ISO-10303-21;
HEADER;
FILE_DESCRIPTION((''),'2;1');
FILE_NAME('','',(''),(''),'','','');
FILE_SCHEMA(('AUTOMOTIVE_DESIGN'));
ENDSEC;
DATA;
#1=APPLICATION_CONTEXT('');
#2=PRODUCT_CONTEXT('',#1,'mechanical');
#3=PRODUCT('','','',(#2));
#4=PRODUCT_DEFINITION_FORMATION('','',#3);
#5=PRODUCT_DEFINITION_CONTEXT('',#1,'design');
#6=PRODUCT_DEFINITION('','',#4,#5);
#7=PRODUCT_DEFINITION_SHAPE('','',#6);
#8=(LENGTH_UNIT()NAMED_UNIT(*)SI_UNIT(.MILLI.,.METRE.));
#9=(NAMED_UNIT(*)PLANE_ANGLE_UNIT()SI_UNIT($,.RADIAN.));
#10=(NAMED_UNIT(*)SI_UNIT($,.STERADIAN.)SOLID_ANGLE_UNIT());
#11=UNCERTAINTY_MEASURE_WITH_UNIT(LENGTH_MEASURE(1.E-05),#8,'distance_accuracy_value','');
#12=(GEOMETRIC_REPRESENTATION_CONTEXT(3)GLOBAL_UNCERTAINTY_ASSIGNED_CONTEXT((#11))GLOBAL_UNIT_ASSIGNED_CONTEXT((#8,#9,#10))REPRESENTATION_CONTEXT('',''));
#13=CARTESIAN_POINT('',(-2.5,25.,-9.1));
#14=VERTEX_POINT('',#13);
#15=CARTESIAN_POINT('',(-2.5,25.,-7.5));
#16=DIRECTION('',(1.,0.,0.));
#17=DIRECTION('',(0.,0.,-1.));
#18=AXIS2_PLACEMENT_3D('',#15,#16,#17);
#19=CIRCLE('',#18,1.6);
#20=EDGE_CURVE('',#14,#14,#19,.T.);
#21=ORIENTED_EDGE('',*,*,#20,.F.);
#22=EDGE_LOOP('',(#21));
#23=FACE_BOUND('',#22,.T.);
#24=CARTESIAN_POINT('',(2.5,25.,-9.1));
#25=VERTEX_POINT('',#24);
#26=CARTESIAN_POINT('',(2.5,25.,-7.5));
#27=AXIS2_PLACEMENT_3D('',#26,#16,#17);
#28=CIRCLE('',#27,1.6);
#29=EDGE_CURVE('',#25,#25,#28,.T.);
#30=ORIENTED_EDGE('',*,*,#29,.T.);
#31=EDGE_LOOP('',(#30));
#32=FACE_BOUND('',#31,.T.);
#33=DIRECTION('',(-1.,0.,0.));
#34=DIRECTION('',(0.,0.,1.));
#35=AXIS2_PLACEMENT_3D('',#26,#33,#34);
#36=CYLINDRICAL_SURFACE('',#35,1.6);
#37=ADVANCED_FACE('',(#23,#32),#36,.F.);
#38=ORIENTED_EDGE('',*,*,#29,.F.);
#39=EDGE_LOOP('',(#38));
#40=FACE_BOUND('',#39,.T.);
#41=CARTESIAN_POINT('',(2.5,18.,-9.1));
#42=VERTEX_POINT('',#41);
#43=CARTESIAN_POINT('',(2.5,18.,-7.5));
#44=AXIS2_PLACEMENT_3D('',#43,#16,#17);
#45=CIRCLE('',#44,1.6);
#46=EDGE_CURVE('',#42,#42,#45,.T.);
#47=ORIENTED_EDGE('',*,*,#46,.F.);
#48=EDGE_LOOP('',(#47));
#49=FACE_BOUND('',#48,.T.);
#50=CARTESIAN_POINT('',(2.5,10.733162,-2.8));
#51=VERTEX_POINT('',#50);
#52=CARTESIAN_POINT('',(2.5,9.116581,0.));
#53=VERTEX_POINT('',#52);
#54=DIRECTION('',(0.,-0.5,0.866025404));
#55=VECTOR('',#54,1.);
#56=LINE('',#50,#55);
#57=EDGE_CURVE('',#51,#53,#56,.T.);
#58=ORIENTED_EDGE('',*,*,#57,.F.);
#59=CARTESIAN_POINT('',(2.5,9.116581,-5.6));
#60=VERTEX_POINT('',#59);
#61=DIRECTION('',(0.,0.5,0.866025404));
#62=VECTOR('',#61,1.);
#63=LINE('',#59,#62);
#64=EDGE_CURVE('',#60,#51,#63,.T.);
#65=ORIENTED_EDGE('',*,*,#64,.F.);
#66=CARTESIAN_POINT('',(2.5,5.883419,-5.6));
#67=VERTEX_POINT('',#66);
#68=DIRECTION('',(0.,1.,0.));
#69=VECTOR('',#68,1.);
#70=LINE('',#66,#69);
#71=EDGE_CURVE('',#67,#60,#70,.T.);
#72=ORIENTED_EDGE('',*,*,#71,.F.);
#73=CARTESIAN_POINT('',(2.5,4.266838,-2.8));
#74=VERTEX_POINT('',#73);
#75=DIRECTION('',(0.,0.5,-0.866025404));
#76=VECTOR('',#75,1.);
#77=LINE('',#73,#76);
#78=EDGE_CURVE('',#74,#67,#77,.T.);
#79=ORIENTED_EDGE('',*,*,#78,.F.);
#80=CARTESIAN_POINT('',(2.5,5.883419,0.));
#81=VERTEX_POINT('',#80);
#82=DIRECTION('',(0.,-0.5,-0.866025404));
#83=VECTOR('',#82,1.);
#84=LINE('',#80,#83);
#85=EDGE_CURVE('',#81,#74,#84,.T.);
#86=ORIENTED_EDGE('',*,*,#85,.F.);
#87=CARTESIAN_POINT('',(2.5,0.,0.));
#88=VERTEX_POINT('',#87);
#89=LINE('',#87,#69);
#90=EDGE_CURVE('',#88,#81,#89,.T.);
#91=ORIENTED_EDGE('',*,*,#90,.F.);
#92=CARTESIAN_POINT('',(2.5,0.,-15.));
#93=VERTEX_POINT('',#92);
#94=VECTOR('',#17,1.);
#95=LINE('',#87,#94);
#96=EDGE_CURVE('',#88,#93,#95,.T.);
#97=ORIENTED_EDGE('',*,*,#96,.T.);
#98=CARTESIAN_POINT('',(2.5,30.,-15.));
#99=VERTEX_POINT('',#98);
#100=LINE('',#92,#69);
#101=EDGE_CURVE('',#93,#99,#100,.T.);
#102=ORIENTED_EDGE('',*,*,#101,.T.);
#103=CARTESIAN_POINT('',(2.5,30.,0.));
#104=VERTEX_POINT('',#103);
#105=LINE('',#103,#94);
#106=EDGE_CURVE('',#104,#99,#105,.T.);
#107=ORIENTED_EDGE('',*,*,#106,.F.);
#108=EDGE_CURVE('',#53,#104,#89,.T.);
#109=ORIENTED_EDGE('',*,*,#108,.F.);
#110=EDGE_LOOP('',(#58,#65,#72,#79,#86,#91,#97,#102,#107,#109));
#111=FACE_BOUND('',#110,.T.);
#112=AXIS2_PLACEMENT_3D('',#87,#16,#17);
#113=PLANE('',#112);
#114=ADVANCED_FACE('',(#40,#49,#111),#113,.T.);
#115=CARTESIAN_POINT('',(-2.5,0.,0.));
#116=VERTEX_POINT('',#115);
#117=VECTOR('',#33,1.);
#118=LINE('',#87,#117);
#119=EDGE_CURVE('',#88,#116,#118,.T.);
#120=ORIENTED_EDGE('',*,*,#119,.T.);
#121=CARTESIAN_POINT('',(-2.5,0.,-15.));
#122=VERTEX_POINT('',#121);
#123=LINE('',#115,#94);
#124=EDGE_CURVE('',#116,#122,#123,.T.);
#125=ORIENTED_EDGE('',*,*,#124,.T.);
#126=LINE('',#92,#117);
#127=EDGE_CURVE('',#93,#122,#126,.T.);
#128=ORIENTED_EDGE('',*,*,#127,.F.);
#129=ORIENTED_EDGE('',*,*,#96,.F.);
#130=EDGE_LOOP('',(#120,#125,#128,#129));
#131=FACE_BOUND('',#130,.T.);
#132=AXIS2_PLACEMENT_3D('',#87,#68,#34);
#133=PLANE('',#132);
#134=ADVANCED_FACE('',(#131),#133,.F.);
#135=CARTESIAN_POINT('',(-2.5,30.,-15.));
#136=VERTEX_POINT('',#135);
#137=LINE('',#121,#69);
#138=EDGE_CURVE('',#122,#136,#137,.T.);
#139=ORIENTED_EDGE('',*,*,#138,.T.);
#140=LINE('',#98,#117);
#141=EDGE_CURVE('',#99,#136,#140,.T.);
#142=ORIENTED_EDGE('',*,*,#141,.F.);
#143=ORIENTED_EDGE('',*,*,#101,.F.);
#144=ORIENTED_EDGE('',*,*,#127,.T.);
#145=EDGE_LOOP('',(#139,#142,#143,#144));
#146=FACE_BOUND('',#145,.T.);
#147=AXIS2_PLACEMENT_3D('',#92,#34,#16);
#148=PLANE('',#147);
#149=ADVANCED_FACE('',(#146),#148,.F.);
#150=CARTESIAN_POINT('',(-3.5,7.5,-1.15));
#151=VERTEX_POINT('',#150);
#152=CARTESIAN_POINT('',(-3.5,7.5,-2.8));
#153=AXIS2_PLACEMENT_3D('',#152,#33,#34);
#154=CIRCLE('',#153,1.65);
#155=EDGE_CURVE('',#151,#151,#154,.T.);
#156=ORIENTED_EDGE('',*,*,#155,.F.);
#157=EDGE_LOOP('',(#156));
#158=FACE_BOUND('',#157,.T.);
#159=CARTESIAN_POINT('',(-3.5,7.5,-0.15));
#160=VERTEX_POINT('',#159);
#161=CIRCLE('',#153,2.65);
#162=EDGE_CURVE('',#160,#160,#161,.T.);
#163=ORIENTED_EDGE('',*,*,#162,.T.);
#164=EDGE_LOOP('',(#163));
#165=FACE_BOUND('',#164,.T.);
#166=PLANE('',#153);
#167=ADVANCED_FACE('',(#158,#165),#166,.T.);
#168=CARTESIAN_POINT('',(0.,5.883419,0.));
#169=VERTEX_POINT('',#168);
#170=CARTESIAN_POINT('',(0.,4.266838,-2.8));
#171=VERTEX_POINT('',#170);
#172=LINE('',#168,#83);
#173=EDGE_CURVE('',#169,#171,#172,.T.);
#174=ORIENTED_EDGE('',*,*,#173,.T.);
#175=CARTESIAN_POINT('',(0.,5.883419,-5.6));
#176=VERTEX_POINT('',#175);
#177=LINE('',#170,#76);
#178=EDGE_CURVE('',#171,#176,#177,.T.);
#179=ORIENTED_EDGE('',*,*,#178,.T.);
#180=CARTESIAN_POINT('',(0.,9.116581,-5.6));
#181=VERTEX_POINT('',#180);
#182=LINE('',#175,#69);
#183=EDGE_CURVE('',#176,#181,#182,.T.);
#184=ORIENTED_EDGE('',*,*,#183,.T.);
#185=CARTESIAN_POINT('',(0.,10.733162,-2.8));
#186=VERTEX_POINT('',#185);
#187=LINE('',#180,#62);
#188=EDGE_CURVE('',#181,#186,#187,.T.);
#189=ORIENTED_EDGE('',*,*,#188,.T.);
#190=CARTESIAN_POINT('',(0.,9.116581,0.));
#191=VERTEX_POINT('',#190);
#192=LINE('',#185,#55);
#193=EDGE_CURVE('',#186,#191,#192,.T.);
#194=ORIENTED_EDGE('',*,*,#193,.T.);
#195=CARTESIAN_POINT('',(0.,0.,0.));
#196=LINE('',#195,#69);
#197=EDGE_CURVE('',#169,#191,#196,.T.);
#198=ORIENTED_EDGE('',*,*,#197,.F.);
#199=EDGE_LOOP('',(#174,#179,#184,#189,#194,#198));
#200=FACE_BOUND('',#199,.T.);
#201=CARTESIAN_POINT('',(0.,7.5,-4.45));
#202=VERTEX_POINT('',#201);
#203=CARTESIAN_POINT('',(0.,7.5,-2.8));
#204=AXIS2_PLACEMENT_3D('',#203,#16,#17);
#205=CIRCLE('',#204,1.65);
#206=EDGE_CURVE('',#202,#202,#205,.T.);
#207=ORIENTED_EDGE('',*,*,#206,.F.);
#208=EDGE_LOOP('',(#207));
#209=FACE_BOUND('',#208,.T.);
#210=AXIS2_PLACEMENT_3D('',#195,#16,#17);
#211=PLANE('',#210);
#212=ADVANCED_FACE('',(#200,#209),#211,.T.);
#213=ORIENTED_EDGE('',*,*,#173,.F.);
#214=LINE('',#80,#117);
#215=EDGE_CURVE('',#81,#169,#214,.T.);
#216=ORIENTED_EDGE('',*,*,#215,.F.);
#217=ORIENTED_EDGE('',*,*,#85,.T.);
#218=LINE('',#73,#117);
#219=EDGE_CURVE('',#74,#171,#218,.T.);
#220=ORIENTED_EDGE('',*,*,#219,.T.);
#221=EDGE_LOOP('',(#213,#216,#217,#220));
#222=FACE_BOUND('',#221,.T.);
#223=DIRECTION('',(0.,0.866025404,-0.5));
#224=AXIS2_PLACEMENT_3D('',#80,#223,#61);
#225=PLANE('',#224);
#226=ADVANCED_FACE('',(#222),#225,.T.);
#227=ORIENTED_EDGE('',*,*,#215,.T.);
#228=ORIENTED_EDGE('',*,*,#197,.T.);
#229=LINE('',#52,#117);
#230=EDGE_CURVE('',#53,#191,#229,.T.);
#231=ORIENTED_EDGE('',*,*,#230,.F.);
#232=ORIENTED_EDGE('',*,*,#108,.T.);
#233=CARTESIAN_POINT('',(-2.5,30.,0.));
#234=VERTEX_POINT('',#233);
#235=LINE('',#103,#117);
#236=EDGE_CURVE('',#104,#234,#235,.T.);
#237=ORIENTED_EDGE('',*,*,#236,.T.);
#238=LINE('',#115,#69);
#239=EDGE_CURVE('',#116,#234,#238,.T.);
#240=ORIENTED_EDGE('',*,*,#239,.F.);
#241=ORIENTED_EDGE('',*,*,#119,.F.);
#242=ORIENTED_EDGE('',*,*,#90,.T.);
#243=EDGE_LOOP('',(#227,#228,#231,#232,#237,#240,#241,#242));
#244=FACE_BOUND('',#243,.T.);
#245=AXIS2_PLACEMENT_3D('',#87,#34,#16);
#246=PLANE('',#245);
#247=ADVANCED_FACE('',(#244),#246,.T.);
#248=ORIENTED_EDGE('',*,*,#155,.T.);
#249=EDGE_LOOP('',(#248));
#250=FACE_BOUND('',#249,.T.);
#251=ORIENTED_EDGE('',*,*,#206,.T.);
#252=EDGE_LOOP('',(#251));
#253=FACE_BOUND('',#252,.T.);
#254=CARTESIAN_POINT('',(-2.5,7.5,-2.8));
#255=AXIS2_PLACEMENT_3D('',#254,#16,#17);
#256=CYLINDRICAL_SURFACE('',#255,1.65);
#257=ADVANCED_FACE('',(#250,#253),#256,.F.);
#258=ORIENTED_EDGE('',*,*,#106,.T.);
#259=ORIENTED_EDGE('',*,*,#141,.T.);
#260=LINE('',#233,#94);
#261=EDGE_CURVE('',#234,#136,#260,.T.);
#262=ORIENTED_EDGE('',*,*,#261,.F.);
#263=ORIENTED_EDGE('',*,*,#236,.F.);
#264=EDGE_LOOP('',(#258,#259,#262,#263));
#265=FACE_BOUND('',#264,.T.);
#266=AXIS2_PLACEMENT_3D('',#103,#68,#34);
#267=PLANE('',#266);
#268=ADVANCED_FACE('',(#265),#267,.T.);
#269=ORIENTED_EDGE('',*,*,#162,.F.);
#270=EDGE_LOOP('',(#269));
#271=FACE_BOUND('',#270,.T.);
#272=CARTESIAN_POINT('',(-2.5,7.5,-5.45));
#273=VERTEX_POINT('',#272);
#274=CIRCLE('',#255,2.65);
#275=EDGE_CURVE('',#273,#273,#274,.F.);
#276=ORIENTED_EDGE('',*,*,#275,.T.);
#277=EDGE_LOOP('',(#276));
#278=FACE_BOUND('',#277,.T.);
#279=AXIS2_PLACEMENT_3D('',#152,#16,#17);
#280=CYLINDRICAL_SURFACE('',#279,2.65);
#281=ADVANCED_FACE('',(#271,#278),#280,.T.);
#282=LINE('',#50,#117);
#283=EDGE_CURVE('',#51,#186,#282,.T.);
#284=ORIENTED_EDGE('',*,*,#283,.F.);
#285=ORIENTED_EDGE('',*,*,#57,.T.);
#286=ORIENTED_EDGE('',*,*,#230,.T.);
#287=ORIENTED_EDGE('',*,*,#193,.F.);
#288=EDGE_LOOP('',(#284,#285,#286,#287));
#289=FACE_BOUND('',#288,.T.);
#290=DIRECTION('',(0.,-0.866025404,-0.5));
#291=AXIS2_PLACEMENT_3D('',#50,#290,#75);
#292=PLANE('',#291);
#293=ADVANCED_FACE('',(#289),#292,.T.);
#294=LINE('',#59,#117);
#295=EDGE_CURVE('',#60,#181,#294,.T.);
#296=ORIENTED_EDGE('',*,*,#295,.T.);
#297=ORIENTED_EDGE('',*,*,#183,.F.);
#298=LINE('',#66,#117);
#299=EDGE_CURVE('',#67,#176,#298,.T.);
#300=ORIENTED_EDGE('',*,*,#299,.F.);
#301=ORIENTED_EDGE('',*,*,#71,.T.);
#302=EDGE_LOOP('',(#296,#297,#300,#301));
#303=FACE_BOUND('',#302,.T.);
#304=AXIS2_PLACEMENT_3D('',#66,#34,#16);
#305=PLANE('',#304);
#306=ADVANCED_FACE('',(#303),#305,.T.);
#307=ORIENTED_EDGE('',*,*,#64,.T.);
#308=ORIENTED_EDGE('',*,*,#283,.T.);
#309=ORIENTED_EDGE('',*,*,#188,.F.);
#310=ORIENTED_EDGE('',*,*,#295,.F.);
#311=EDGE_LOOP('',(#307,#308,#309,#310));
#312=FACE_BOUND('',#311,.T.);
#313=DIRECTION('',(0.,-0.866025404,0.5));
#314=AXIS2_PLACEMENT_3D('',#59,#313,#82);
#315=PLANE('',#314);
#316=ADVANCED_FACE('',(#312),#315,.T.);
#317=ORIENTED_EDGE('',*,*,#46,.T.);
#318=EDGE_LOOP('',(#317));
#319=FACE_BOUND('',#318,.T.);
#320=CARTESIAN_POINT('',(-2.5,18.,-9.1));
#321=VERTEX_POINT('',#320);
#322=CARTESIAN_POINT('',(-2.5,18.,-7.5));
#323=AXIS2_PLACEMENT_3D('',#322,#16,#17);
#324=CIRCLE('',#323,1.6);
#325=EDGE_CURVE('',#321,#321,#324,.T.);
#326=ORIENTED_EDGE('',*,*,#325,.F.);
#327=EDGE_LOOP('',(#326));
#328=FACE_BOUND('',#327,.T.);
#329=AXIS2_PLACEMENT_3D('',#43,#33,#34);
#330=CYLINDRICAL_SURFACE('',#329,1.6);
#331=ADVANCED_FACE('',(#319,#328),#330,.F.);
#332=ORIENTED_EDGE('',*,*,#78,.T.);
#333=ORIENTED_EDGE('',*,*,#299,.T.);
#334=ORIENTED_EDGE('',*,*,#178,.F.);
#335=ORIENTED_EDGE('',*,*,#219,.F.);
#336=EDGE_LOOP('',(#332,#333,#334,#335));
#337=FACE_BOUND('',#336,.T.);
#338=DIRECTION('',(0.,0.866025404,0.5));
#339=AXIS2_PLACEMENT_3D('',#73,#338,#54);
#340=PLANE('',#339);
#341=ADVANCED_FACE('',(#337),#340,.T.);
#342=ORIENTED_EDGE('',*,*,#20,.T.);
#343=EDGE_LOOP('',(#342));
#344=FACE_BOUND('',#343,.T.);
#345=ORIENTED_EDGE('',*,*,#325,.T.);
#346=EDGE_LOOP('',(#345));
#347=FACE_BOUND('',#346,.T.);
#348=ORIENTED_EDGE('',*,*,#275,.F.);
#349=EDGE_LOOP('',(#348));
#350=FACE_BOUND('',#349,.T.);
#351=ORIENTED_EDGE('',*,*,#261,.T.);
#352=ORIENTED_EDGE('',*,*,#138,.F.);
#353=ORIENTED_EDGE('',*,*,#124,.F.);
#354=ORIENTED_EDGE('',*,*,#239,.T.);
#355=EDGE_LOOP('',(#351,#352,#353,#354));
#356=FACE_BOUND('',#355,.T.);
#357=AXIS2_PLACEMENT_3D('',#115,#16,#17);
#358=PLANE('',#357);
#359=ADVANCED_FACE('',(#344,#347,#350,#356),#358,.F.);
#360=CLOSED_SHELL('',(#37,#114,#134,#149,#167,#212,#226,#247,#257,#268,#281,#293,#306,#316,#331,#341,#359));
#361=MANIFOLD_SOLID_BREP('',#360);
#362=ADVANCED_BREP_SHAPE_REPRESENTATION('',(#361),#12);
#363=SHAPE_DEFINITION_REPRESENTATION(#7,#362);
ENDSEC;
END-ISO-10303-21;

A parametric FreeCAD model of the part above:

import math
import FreeCAD as App
import Part
import Sketcher

V = App.Vector
Q = App.Units.Quantity


def add_polygon(sketch, points):
    """Adds a closed chain of lines whose ends are joined by coincident constraints."""
    first, n = sketch.GeometryCount, len(points)
    for a, b in zip(points, points[1:] + points[:1]):
        sketch.addGeometry(Part.LineSegment(App.Vector(*a, 0), App.Vector(*b, 0)), False)
    for i in range(n):
        sketch.addConstraint(Sketcher.Constraint("Coincident", first + i, 2, first + (i + 1) % n, 1))

doc = App.newDocument("Part")
body = doc.addObject("PartDesign::Body", "Body")

# Sketch on YZ plane
sketch1 = doc.addObject("Sketcher::SketchObject", "Sketch")
body.addObject(sketch1)
sketch1.AttachmentSupport = (doc.YZ_Plane, [""])
sketch1.MapMode = "FlatFace"
add_polygon(sketch1, [(5.9, 0), (0, 0), (0, -15), (30, -15), (30, 0), (9.1, 0), (10.7, -2.8), (9.1, -5.6), (5.9, -5.6), (4.3, -2.8)])  # lines 0-9
sketch1.addGeometry(Part.Circle(V(18, -7.5, 0), V(0, 0, 1), 1.6), False)  # 10
sketch1.addGeometry(Part.Circle(V(25, -7.5, 0), V(0, 0, 1), 1.6), False)  # 11
sketch1.addConstraint([
    Sketcher.Constraint("Horizontal", 0),
    Sketcher.Constraint("Vertical", 1),
    Sketcher.Constraint("Horizontal", 2),
    Sketcher.Constraint("Vertical", 3),
    Sketcher.Constraint("Horizontal", 4),
    Sketcher.Constraint("Horizontal", 7),
    Sketcher.Constraint("Coincident", 0, 2, -1, 1),
    Sketcher.Constraint("Equal", 10, 11),
    Sketcher.Constraint("PointOnObject", 3, 2, -1),
    Sketcher.Constraint("Parallel", 5, 8),
    Sketcher.Constraint("Parallel", 6, 9),
    Sketcher.Constraint("Horizontal", 10, 3, 11, 3),
    Sketcher.Constraint("Horizontal", 5, 2, 8, 2),
    Sketcher.Constraint("Vertical", 4, 2, 6, 2),
    Sketcher.Constraint("Vertical", 7, 2, 9, 2),
    Sketcher.Constraint("Diameter", 10, 3.2),
    Sketcher.Constraint("DistanceX", 2, 1, 2, 2, 30.0),
    Sketcher.Constraint("DistanceY", 1, 2, 1, 1, 15.0),
    Sketcher.Constraint("Angle", 5, Q("-60 deg")),
    Sketcher.Constraint("DistanceX", -1, 1, 10, 3, 18.0),
    Sketcher.Constraint("DistanceX", -1, 1, 11, 3, 25.0),
    Sketcher.Constraint("DistanceY", 10, 3, -1, 1, 7.5),
    Sketcher.Constraint("DistanceY", 5, 2, -1, 1, 2.8),
    Sketcher.Constraint("DistanceX", 0, 2, 0, 1, 5.883419),
    Sketcher.Constraint("DistanceX", 4, 2, 4, 1, 20.883419),
])
pad1 = doc.addObject("PartDesign::Pad", "Pad")
body.addObject(pad1)
pad1.Profile = sketch1
pad1.Length = 2.5

# Sketch on YZ plane
sketch2 = doc.addObject("Sketcher::SketchObject", "Sketch001")
body.addObject(sketch2)
sketch2.AttachmentSupport = (doc.YZ_Plane, [""])
sketch2.MapMode = "FlatFace"
sketch2.AttachmentOffset = App.Placement(V(0, 0, -2.5), App.Rotation())
add_polygon(sketch2, [(0, 0), (0, -15), (30, -15), (30, 0)])  # lines 0-3
sketch2.addGeometry(Part.ArcOfCircle(Part.Circle(V(18, -7.5, 0), V(0, 0, 1), 1.6), math.radians(51), math.radians(270)), False)  # 4
sketch2.addGeometry(Part.ArcOfCircle(Part.Circle(V(18, -7.5, 0), V(0, 0, 1), 1.6), math.radians(-51), math.radians(51)), False)  # 5
sketch2.addGeometry(Part.ArcOfCircle(Part.Circle(V(18, -7.5, 0), V(0, 0, 1), 1.6), math.radians(-90), math.radians(-51)), False)  # 6
sketch2.addGeometry(Part.Circle(V(25, -7.5, 0), V(0, 0, 1), 1.6), False)  # 7
sketch2.addGeometry(Part.Circle(V(7.5, -2.8, 0), V(0, 0, 1), 1.6), False)  # 8
sketch2.addConstraint([
    Sketcher.Constraint("Tangent", 4, 1, 5, 2),
    Sketcher.Constraint("Tangent", 5, 1, 6, 2),
    Sketcher.Constraint("Tangent", 6, 1, 4, 2),
    Sketcher.Constraint("Vertical", 0),
    Sketcher.Constraint("Horizontal", 1),
    Sketcher.Constraint("Vertical", 2),
    Sketcher.Constraint("Horizontal", 3),
    Sketcher.Constraint("Coincident", 3, 2, -1, 1),
    Sketcher.Constraint("Equal", 6, 7),
    Sketcher.Constraint("Horizontal", 6, 3, 7, 3),
    Sketcher.Constraint("Vertical", 4, 1, 5, 1),
    Sketcher.Constraint("Vertical", 5, 3, 6, 1),
    Sketcher.Constraint("Diameter", 7, 3.2),
    Sketcher.Constraint("Diameter", 8, 3.3),
    Sketcher.Constraint("DistanceX", 1, 1, 1, 2, 30.0),
    Sketcher.Constraint("DistanceY", 0, 2, 0, 1, 15.0),
    Sketcher.Constraint("DistanceX", -1, 1, 4, 3, 18.0),
    Sketcher.Constraint("DistanceX", -1, 1, 7, 3, 25.0),
    Sketcher.Constraint("DistanceX", -1, 1, 4, 1, 19.0),
    Sketcher.Constraint("DistanceY", 4, 3, -1, 1, 7.5),
    Sketcher.Constraint("DistanceX", -1, 1, 8, 3, 7.5),
    Sketcher.Constraint("DistanceY", 8, 3, -1, 1, 2.8),
])
pad2 = doc.addObject("PartDesign::Pad", "Pad001")
body.addObject(pad2)
pad2.Profile = sketch2
pad2.Length = 2.5

# Sketch on YZ plane
sketch3 = doc.addObject("Sketcher::SketchObject", "Sketch002")
body.addObject(sketch3)
sketch3.AttachmentSupport = (doc.YZ_Plane, [""])
sketch3.MapMode = "FlatFace"
sketch3.AttachmentOffset = App.Placement(V(0, 0, -3.5), App.Rotation())
sketch3.addGeometry([
    Part.Circle(V(7.5, -2.8, 0), V(0, 0, 1), 2.6),
    Part.Circle(V(7.5, -2.8, 0), V(0, 0, 1), 1.6),
], False)
sketch3.addConstraint([
    Sketcher.Constraint("Coincident", 1, 3, 0, 3),
    Sketcher.Constraint("Diameter", 0, 5.3),
    Sketcher.Constraint("Diameter", 1, 3.3),
    Sketcher.Constraint("DistanceX", -1, 1, 0, 3, 7.5),
    Sketcher.Constraint("DistanceY", 0, 3, -1, 1, 2.8),
])
pad3 = doc.addObject("PartDesign::Pad", "Pad002")
body.addObject(pad3)
pad3.Profile = sketch3
pad3.Length = 1

doc.recompute()
